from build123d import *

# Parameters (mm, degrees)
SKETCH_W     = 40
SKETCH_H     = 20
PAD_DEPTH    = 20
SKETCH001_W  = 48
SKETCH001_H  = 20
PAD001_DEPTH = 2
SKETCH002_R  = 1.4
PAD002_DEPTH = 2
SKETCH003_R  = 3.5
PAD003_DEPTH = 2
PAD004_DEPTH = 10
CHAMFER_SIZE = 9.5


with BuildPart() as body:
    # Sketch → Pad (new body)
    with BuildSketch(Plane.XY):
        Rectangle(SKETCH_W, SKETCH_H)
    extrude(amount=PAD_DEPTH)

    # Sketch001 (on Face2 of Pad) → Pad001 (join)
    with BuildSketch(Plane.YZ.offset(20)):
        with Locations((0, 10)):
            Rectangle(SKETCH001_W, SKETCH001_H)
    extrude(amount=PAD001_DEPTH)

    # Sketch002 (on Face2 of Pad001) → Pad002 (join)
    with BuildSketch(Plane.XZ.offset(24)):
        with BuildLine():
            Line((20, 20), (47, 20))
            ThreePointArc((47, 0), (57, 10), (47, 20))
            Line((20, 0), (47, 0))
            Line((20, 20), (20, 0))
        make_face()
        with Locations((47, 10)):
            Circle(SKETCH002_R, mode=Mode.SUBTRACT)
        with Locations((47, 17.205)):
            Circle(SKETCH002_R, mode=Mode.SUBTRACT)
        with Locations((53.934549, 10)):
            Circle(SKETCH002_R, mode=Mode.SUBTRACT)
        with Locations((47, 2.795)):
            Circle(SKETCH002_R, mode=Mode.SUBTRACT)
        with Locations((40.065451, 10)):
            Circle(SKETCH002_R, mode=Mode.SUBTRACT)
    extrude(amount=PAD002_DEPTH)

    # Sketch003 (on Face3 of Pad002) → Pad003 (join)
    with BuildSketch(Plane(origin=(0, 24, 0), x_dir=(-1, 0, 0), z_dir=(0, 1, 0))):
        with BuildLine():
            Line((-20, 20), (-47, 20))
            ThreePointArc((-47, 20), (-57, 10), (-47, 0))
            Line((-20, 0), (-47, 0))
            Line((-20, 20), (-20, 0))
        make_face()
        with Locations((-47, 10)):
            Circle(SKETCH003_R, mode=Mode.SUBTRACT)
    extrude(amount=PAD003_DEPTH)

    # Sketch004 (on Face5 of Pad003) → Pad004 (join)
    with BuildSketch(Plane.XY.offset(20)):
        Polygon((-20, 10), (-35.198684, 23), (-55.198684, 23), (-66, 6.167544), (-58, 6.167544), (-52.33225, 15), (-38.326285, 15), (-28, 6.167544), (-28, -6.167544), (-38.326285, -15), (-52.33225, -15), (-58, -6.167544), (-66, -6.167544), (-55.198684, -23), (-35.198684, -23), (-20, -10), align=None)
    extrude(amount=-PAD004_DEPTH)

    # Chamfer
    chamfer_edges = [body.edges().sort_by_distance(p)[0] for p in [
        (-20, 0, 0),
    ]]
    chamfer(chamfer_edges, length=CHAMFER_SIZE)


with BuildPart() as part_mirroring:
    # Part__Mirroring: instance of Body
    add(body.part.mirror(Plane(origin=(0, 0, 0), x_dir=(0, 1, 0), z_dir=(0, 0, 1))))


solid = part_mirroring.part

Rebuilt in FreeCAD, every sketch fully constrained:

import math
import FreeCAD as App
import Part
import Sketcher
from FreeCAD import Vector


def edges_at(feature, points):
    """Names of the edges that pass closest to the given points."""
    edges = feature.Shape.Edges
    near = lambda p: min(range(len(edges)), key=lambda i: edges[i].distToShape(Part.Vertex(*p))[0])
    return sorted({f"Edge{near(p) + 1}" for p in points})

doc = App.newDocument("Part")
params = doc.addObject("Spreadsheet::Sheet", "Params")
for row, (alias, value) in enumerate([
    ("sketch1_width", "40 mm"),
    ("sketch1_height", "20 mm"),
    ("pad1_length", "20 mm"),
    ("sketch2_width", "48 mm"),
    ("sketch2_height", "20 mm"),
    ("pad2_length", "2 mm"),
    ("sketch3_radius", "10 mm"),
    ("sketch3_diameter", "2.8 mm"),
    ("sketch3_width", "27 mm"),
    ("pad3_length", "2 mm"),
    ("sketch4_diameter", "7 mm"),
    ("sketch4_radius", "10 mm"),
    ("sketch4_width", "27 mm"),
    ("pad4_length", "2 mm"),
    ("sketch5_width", "20 mm"),
    ("sketch5_width2", "8 mm"),
    ("sketch5_length", "20 mm"),
    ("pad5_length", "10 mm"),
    ("chamfer_size", "9.5 mm"),
], start=1):
    params.set(f"A{row}", alias)
    params.set(f"B{row}", "=" + value)
    params.setAlias(f"B{row}", alias)

body = doc.addObject("PartDesign::Body", "Body")

# Sketch on XY plane
sketch1 = body.newObject("Sketcher::SketchObject", "Sketch")
sketch1.AttachmentSupport = (doc.getObject("XY_Plane"), [""])
sketch1.MapMode = "FlatFace"
sketch1.addGeometry(Part.LineSegment(Vector(-20, 10, 0), Vector(-20, -10, 0)), False)
sketch1.addGeometry(Part.LineSegment(Vector(-20, -10, 0), Vector(20, -10, 0)), False)
sketch1.addGeometry(Part.LineSegment(Vector(20, -10, 0), Vector(20, 10, 0)), False)
sketch1.addGeometry(Part.LineSegment(Vector(20, 10, 0), Vector(-20, 10, 0)), False)
sketch1.addConstraint(Sketcher.Constraint("Coincident", 0, 2, 1, 1))
sketch1.addConstraint(Sketcher.Constraint("Coincident", 1, 2, 2, 1))
sketch1.addConstraint(Sketcher.Constraint("Coincident", 2, 2, 3, 1))
sketch1.addConstraint(Sketcher.Constraint("Coincident", 3, 2, 0, 1))
sketch1.addConstraint(Sketcher.Constraint("Vertical", 0))
sketch1.addConstraint(Sketcher.Constraint("Horizontal", 1))
sketch1.addConstraint(Sketcher.Constraint("Vertical", 2))
sketch1.addConstraint(Sketcher.Constraint("Horizontal", 3))
sketch1.addConstraint(Sketcher.Constraint("Symmetric", 0, 2, 2, 2, -1, 1))
sketch1.addConstraint(Sketcher.Constraint("DistanceX", 1, 1, 1, 2, 40.0))
sketch1.addConstraint(Sketcher.Constraint("DistanceY", 0, 2, 0, 1, 20.0))
sketch1.setExpression("Constraints[9]", "Params.sketch1_width")
sketch1.setExpression("Constraints[10]", "Params.sketch1_height")
pad1 = body.newObject("PartDesign::Pad", "Pad")
pad1.Profile = sketch1
pad1.setExpression("Length", "Params.pad1_length")

# Sketch on YZ plane
sketch2 = body.newObject("Sketcher::SketchObject", "Sketch001")
sketch2.AttachmentSupport = (doc.getObject("YZ_Plane"), [""])
sketch2.MapMode = "FlatFace"
sketch2.AttachmentOffset = App.Placement(Vector(0, 0, 20), App.Rotation())
sketch2.addGeometry(Part.LineSegment(Vector(-24, 20, 0), Vector(-24, 0, 0)), False)
sketch2.addGeometry(Part.LineSegment(Vector(-24, 0, 0), Vector(24, 0, 0)), False)
sketch2.addGeometry(Part.LineSegment(Vector(24, 0, 0), Vector(24, 20, 0)), False)
sketch2.addGeometry(Part.LineSegment(Vector(24, 20, 0), Vector(-24, 20, 0)), False)
sketch2.addConstraint(Sketcher.Constraint("Coincident", 0, 2, 1, 1))
sketch2.addConstraint(Sketcher.Constraint("Coincident", 1, 2, 2, 1))
sketch2.addConstraint(Sketcher.Constraint("Coincident", 2, 2, 3, 1))
sketch2.addConstraint(Sketcher.Constraint("Coincident", 3, 2, 0, 1))
sketch2.addConstraint(Sketcher.Constraint("Vertical", 0))
sketch2.addConstraint(Sketcher.Constraint("Horizontal", 1))
sketch2.addConstraint(Sketcher.Constraint("Vertical", 2))
sketch2.addConstraint(Sketcher.Constraint("Horizontal", 3))
sketch2.addConstraint(Sketcher.Constraint("Symmetric", 0, 2, 1, 2, -1, 1))
sketch2.addConstraint(Sketcher.Constraint("DistanceX", 1, 1, 1, 2, 48.0))
sketch2.addConstraint(Sketcher.Constraint("DistanceY", 0, 2, 0, 1, 20.0))
sketch2.setExpression("Constraints[9]", "Params.sketch2_width")
sketch2.setExpression("Constraints[10]", "Params.sketch2_height")
pad2 = body.newObject("PartDesign::Pad", "Pad001")
pad2.Profile = sketch2
pad2.setExpression("Length", "Params.pad2_length")

# Sketch on XZ plane
sketch3 = body.newObject("Sketcher::SketchObject", "Sketch002")
sketch3.AttachmentSupport = (doc.getObject("XZ_Plane"), [""])
sketch3.MapMode = "FlatFace"
sketch3.AttachmentOffset = App.Placement(Vector(0, 0, 24), App.Rotation())
sketch3.addGeometry(Part.LineSegment(Vector(47, 20, 0), Vector(20, 20, 0)), False)
sketch3.addGeometry(Part.LineSegment(Vector(20, 20, 0), Vector(20, 0, 0)), False)
sketch3.addGeometry(Part.LineSegment(Vector(20, 0, 0), Vector(47, 0, 0)), False)
sketch3.addGeometry(Part.ArcOfCircle(Part.Circle(Vector(47, 10, 0), Vector(0, 0, 1), 10), math.radians(-90), math.radians(90)), False)
sketch3.addGeometry(Part.Circle(Vector(47, 2.8, 0), Vector(0, 0, 1), 1.4), False)
sketch3.addGeometry(Part.Circle(Vector(53.9, 10, 0), Vector(0, 0, 1), 1.4), False)
sketch3.addGeometry(Part.Circle(Vector(47, 10, 0), Vector(0, 0, 1), 1.4), False)
sketch3.addGeometry(Part.Circle(Vector(40.1, 10, 0), Vector(0, 0, 1), 1.4), False)
sketch3.addGeometry(Part.Circle(Vector(47, 17.2, 0), Vector(0, 0, 1), 1.4), False)
sketch3.addConstraint(Sketcher.Constraint("Coincident", 0, 2, 1, 1))
sketch3.addConstraint(Sketcher.Constraint("Coincident", 1, 2, 2, 1))
sketch3.addConstraint(Sketcher.Constraint("Tangent", 2, 2, 3, 1))
sketch3.addConstraint(Sketcher.Constraint("Tangent", 3, 2, 0, 1))
sketch3.addConstraint(Sketcher.Constraint("Horizontal", 0))
sketch3.addConstraint(Sketcher.Constraint("Vertical", 1))
sketch3.addConstraint(Sketcher.Constraint("Horizontal", 2))
sketch3.addConstraint(Sketcher.Constraint("Coincident", 6, 3, 3, 3))
sketch3.addConstraint(Sketcher.Constraint("Equal", 4, 5))
sketch3.addConstraint(Sketcher.Constraint("Equal", 5, 6))
sketch3.addConstraint(Sketcher.Constraint("Equal", 6, 7))
sketch3.addConstraint(Sketcher.Constraint("Equal", 7, 8))
sketch3.addConstraint(Sketcher.Constraint("PointOnObject", 1, 2, -1))
sketch3.addConstraint(Sketcher.Constraint("Horizontal", 3, 3, 5, 3))
sketch3.addConstraint(Sketcher.Constraint("Horizontal", 6, 3, 7, 3))
sketch3.addConstraint(Sketcher.Constraint("Vertical", 3, 3, 4, 3))
sketch3.addConstraint(Sketcher.Constraint("Vertical", 6, 3, 8, 3))
sketch3.addConstraint(Sketcher.Constraint("Radius", 3, 10.0))
sketch3.addConstraint(Sketcher.Constraint("Diameter", 4, 2.8))
sketch3.addConstraint(Sketcher.Constraint("DistanceX", 0, 2, 0, 1, 27.0))
sketch3.addConstraint(Sketcher.Constraint("DistanceX", -1, 1, 3, 3, 47.0))
sketch3.addConstraint(Sketcher.Constraint("DistanceY", 4, 3, 8, 3, 14.41))
sketch3.addConstraint(Sketcher.Constraint("DistanceY", -1, 1, 4, 3, 2.795))
sketch3.addConstraint(Sketcher.Constraint("DistanceX", -1, 1, 5, 3, 53.934549))
sketch3.addConstraint(Sketcher.Constraint("DistanceX", -1, 1, 7, 3, 40.065451))
sketch3.setExpression("Constraints[17]", "Params.sketch3_radius")
sketch3.setExpression("Constraints[18]", "Params.sketch3_diameter")
sketch3.setExpression("Constraints[19]", "Params.sketch3_width")
pad3 = body.newObject("PartDesign::Pad", "Pad002")
pad3.Profile = sketch3
pad3.setExpression("Length", "Params.pad3_length")

# Sketch on XZ plane
sketch4 = body.newObject("Sketcher::SketchObject", "Sketch003")
sketch4.AttachmentSupport = (doc.getObject("XZ_Plane"), [""])
sketch4.MapMode = "FlatFace"
sketch4.AttachmentOffset = App.Placement(Vector(0, 0, -24), App.Rotation())
sketch4.addGeometry(Part.LineSegment(Vector(20, 20, 0), Vector(47, 20, 0)), False)
sketch4.addGeometry(Part.ArcOfCircle(Part.Circle(Vector(47, 10, 0), Vector(0, 0, 1), 10), math.radians(-90), math.radians(90)), False)
sketch4.addGeometry(Part.LineSegment(Vector(47, 0, 0), Vector(20, 0, 0)), False)
sketch4.addGeometry(Part.LineSegment(Vector(20, 0, 0), Vector(20, 20, 0)), False)
sketch4.addGeometry(Part.Circle(Vector(47, 10, 0), Vector(0, 0, 1), 3.5), False)
sketch4.addConstraint(Sketcher.Constraint("Tangent", 0, 2, 1, 2))
sketch4.addConstraint(Sketcher.Constraint("Tangent", 1, 1, 2, 1))
sketch4.addConstraint(Sketcher.Constraint("Coincident", 2, 2, 3, 1))
sketch4.addConstraint(Sketcher.Constraint("Coincident", 3, 2, 0, 1))
sketch4.addConstraint(Sketcher.Constraint("Horizontal", 0))
sketch4.addConstraint(Sketcher.Constraint("Horizontal", 2))
sketch4.addConstraint(Sketcher.Constraint("Vertical", 3))
sketch4.addConstraint(Sketcher.Constraint("Coincident", 4, 3, 1, 3))
sketch4.addConstraint(Sketcher.Constraint("PointOnObject", 1, 1, -1))
sketch4.addConstraint(Sketcher.Constraint("Diameter", 4, 7.0))
sketch4.addConstraint(Sketcher.Constraint("Radius", 1, 10.0))
sketch4.addConstraint(Sketcher.Constraint("DistanceX", 0, 1, 0, 2, 27.0))
sketch4.addConstraint(Sketcher.Constraint("DistanceX", -1, 1, 1, 3, 47.0))
sketch4.setExpression("Constraints[9]", "Params.sketch4_diameter")
sketch4.setExpression("Constraints[10]", "Params.sketch4_radius")
sketch4.setExpression("Constraints[11]", "Params.sketch4_width")
pad4 = body.newObject("PartDesign::Pad", "Pad003")
pad4.Profile = sketch4
pad4.setExpression("Length", "Params.pad4_length")
pad4.Reversed = True

# Sketch on XY plane
sketch5 = body.newObject("Sketcher::SketchObject", "Sketch004")
sketch5.AttachmentSupport = (doc.getObject("XY_Plane"), [""])
sketch5.MapMode = "FlatFace"
sketch5.AttachmentOffset = App.Placement(Vector(0, 0, 20), App.Rotation())
sketch5.addGeometry(Part.LineSegment(Vector(-20, 10, 0), Vector(-35, 23, 0)), False)
sketch5.addGeometry(Part.LineSegment(Vector(-35, 23, 0), Vector(-55, 23, 0)), False)
sketch5.addGeometry(Part.LineSegment(Vector(-55, 23, 0), Vector(-66, 6, 0)), False)
sketch5.addGeometry(Part.LineSegment(Vector(-66, 6, 0), Vector(-58, 6, 0)), False)
sketch5.addGeometry(Part.LineSegment(Vector(-58, 6, 0), Vector(-52, 15, 0)), False)
sketch5.addGeometry(Part.LineSegment(Vector(-52, 15, 0), Vector(-38, 15, 0)), False)
sketch5.addGeometry(Part.LineSegment(Vector(-38, 15, 0), Vector(-28, 6, 0)), False)
sketch5.addGeometry(Part.LineSegment(Vector(-28, 6, 0), Vector(-28, -6, 0)), False)
sketch5.addGeometry(Part.LineSegment(Vector(-28, -6, 0), Vector(-38, -15, 0)), False)
sketch5.addGeometry(Part.LineSegment(Vector(-38, -15, 0), Vector(-52, -15, 0)), False)
sketch5.addGeometry(Part.LineSegment(Vector(-52, -15, 0), Vector(-58, -6, 0)), False)
sketch5.addGeometry(Part.LineSegment(Vector(-58, -6, 0), Vector(-66, -6, 0)), False)
sketch5.addGeometry(Part.LineSegment(Vector(-66, -6, 0), Vector(-55, -23, 0)), False)
sketch5.addGeometry(Part.LineSegment(Vector(-55, -23, 0), Vector(-35, -23, 0)), False)
sketch5.addGeometry(Part.LineSegment(Vector(-35, -23, 0), Vector(-20, -10, 0)), False)
sketch5.addGeometry(Part.LineSegment(Vector(-20, -10, 0), Vector(-20, 10, 0)), False)
sketch5.addConstraint(Sketcher.Constraint("Coincident", 0, 2, 1, 1))
sketch5.addConstraint(Sketcher.Constraint("Coincident", 1, 2, 2, 1))
sketch5.addConstraint(Sketcher.Constraint("Coincident", 2, 2, 3, 1))
sketch5.addConstraint(Sketcher.Constraint("Coincident", 3, 2, 4, 1))
sketch5.addConstraint(Sketcher.Constraint("Coincident", 4, 2, 5, 1))
sketch5.addConstraint(Sketcher.Constraint("Coincident", 5, 2, 6, 1))
sketch5.addConstraint(Sketcher.Constraint("Coincident", 6, 2, 7, 1))
sketch5.addConstraint(Sketcher.Constraint("Coincident", 7, 2, 8, 1))
sketch5.addConstraint(Sketcher.Constraint("Coincident", 8, 2, 9, 1))
sketch5.addConstraint(Sketcher.Constraint("Coincident", 9, 2, 10, 1))
sketch5.addConstraint(Sketcher.Constraint("Coincident", 10, 2, 11, 1))
sketch5.addConstraint(Sketcher.Constraint("Coincident", 11, 2, 12, 1))
sketch5.addConstraint(Sketcher.Constraint("Coincident", 12, 2, 13, 1))
sketch5.addConstraint(Sketcher.Constraint("Coincident", 13, 2, 14, 1))
sketch5.addConstraint(Sketcher.Constraint("Coincident", 14, 2, 15, 1))
sketch5.addConstraint(Sketcher.Constraint("Coincident", 15, 2, 0, 1))
sketch5.addConstraint(Sketcher.Constraint("Horizontal", 1))
sketch5.addConstraint(Sketcher.Constraint("Horizontal", 3))
sketch5.addConstraint(Sketcher.Constraint("Horizontal", 5))
sketch5.addConstraint(Sketcher.Constraint("Vertical", 7))
sketch5.addConstraint(Sketcher.Constraint("Horizontal", 9))
sketch5.addConstraint(Sketcher.Constraint("Horizontal", 11))
sketch5.addConstraint(Sketcher.Constraint("Horizontal", 13))
sketch5.addConstraint(Sketcher.Constraint("Vertical", 15))
sketch5.addConstraint(Sketcher.Constraint("Symmetric", 5, 2, 8, 2, -1))
sketch5.addConstraint(Sketcher.Constraint("Symmetric", 3, 2, 10, 2, -1))
sketch5.addConstraint(Sketcher.Constraint("Symmetric", 1, 2, 12, 2, -1))
sketch5.addConstraint(Sketcher.Constraint("Parallel", 2, 4))
sketch5.addConstraint(Sketcher.Constraint("Parallel", 0, 6))
sketch5.addConstraint(Sketcher.Constraint("Parallel", 10, 12))
sketch5.addConstraint(Sketcher.Constraint("Parallel", 8, 14))
sketch5.addConstraint(Sketcher.Constraint("Horizontal", 3, 2, 6, 2))
sketch5.addConstraint(Sketcher.Constraint("Horizontal", 7, 2, 10, 2))
sketch5.addConstraint(Sketcher.Constraint("Vertical", 4, 2, 9, 2))
sketch5.addConstraint(Sketcher.Constraint("Vertical", 0, 2, 13, 2))
sketch5.addConstraint(Sketcher.Constraint("Equal", 13, 15))
sketch5.addConstraint(Sketcher.Constraint("Equal", 0, 2))
sketch5.addConstraint(Sketcher.Constraint("DistanceX", 1, 2, 1, 1, 20.0))
sketch5.addConstraint(Sketcher.Constraint("DistanceX", 3, 1, 3, 2, 8.0))
sketch5.addConstraint(Sketcher.Constraint("Distance", 0, 20.0))
sketch5.addConstraint(Sketcher.Constraint("DistanceY", -1, 1, 0, 2, 23.0))
sketch5.addConstraint(Sketcher.Constraint("DistanceX", 2, 2, -1, 1, 66.0))
sketch5.addConstraint(Sketcher.Constraint("DistanceY", -1, 1, 4, 2, 15.0))
sketch5.addConstraint(Sketcher.Constraint("DistanceX", 6, 2, -1, 1, 28.0))
sketch5.addConstraint(Sketcher.Constraint("DistanceX", 14, 2, -1, 1, 20.0))
sketch5.setExpression("Constraints[37]", "Params.sketch5_width")
sketch5.setExpression("Constraints[38]", "Params.sketch5_width2")
sketch5.setExpression("Constraints[39]", "Params.sketch5_length")
pad5 = body.newObject("PartDesign::Pad", "Pad004")
pad5.Profile = sketch5
pad5.setExpression("Length", "Params.pad5_length")
pad5.Reversed = True
doc.recompute()

chamfer = body.newObject("PartDesign::Chamfer", "Chamfer")
chamfer.Base = (pad5, edges_at(pad5, [(-20, 0, 0)]))
chamfer.setExpression("Size", "Params.chamfer_size")
body2 = doc.addObject("PartDesign::Body", "Body001")
doc.recompute()

mirroring = doc.addObject("Part::Mirroring", "Mirroring")
mirroring.Source = body
mirroring.Base = Vector(0, 0, 0)
mirroring.Normal = Vector(0, 0, 1)
body2.BaseFeature = mirroring
doc.recompute()
body.Visibility = False
mirroring.Visibility = False

doc.recompute()
